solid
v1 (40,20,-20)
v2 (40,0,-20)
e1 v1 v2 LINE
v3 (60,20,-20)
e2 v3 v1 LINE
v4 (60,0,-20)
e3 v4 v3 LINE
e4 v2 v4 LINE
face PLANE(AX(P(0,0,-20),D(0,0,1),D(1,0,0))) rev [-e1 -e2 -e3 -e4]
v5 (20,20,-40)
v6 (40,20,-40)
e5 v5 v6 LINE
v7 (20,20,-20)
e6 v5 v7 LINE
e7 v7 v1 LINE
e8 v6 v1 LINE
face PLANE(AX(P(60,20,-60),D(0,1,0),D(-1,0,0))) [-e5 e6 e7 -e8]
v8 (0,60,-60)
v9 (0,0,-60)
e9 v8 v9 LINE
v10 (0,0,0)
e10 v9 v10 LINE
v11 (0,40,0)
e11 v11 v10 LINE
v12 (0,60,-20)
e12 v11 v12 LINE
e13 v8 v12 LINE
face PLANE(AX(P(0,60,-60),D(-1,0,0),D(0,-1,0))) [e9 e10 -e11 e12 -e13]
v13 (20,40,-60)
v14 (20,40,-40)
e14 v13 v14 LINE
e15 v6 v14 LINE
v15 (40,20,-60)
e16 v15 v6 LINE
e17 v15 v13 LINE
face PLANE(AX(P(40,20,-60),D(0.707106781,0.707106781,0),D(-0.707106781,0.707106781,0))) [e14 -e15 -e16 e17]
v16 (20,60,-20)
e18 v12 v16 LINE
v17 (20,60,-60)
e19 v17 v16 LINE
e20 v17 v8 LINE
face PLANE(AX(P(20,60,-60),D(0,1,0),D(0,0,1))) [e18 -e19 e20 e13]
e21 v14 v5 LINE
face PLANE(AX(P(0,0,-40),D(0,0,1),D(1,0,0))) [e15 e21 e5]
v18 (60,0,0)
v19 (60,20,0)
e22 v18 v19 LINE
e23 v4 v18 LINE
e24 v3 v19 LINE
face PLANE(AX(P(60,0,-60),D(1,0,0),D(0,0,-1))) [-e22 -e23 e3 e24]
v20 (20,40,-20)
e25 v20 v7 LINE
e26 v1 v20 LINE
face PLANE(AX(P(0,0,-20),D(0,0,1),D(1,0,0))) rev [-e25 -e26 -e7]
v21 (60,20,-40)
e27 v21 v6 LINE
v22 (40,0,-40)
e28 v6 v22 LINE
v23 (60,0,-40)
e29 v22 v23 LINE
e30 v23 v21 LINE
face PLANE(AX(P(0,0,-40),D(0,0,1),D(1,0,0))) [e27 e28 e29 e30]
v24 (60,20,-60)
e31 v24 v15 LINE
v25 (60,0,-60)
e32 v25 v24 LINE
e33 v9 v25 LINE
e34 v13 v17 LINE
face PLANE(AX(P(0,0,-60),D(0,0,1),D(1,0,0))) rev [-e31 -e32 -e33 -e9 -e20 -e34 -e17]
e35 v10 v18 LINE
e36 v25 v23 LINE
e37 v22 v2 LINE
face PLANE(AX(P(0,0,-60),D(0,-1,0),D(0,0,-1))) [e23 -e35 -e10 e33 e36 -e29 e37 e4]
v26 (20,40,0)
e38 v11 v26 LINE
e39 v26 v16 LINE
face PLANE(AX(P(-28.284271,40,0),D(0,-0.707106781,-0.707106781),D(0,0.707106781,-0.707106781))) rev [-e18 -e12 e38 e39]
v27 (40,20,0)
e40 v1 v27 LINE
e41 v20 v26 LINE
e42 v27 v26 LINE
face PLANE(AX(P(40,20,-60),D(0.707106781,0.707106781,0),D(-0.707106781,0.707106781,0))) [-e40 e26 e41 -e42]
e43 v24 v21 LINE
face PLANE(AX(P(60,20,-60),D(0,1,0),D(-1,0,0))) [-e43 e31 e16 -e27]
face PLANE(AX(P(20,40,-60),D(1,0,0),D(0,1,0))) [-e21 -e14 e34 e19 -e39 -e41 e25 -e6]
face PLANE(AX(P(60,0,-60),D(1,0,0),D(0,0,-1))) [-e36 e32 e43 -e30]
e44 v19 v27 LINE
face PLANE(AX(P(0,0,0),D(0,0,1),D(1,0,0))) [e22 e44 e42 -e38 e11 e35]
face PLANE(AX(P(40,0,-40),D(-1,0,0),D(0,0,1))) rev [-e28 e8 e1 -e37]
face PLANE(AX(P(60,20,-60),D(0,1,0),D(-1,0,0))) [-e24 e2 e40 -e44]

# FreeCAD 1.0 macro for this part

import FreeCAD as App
import Part
import Sketcher
from FreeCAD import Vector

doc = App.newDocument("Part")
body = doc.addObject("PartDesign::Body", "Body")

sketch1 = body.newObject("Sketcher::SketchObject", "Sketch")
sketch1.AttachmentSupport = (doc.getObject("XY_Plane"), [""])
sketch1.MapMode = "FlatFace"
sketch1.addGeometry([
    Part.LineSegment(Vector(0, 0, 0), Vector(60, 0, 0)),
    Part.LineSegment(Vector(60, 0, 0), Vector(60, 20, 0)),
    Part.LineSegment(Vector(60, 20, 0), Vector(40, 20, 0)),
    Part.LineSegment(Vector(40, 20, 0), Vector(20, 40, 0)),
    Part.LineSegment(Vector(20, 40, 0), Vector(20, 60, 0)),
    Part.LineSegment(Vector(20, 60, 0), Vector(0, 60, 0)),
    Part.LineSegment(Vector(0, 60, 0), Vector(0, 0, 0)),
], False)
sketch1.addConstraint([
    Sketcher.Constraint("Coincident", 0, 2, 1, 1),
    Sketcher.Constraint("Coincident", 1, 2, 2, 1),
    Sketcher.Constraint("Coincident", 2, 2, 3, 1),
    Sketcher.Constraint("Coincident", 3, 2, 4, 1),
    Sketcher.Constraint("Coincident", 4, 2, 5, 1),
    Sketcher.Constraint("Coincident", 5, 2, 6, 1),
    Sketcher.Constraint("Coincident", 6, 2, 0, 1),
    Sketcher.Constraint("Horizontal", 0),
    Sketcher.Constraint("Vertical", 1),
    Sketcher.Constraint("Horizontal", 2),
    Sketcher.Constraint("Vertical", 4),
    Sketcher.Constraint("Horizontal", 5),
    Sketcher.Constraint("Vertical", 6),
    Sketcher.Constraint("Coincident", 6, 2, -1, 1),
    Sketcher.Constraint("Equal", 2, 5),
    Sketcher.Constraint("Equal", 5, 1),
    Sketcher.Constraint("Equal", 1, 4),
    Sketcher.Constraint("Equal", 0, 6),
    Sketcher.Constraint("DistanceX", 0, 1, 0, 2, 60.0),
    Sketcher.Constraint("DistanceX", 2, 2, 2, 1, 20.0),
])
pad1 = body.newObject("PartDesign::Pad", "Pad")
pad1.Profile = sketch1
pad1.Length = 60
pad1.Reversed = True

sketch2 = body.newObject("Sketcher::SketchObject", "Sketch001")
sketch2.AttachmentSupport = (doc.getObject("YZ_Plane"), [""])
sketch2.MapMode = "FlatFace"
sketch2.AttachmentOffset = App.Placement(Vector(0, 0, 20), App.Rotation())
sketch2.addGeometry([
    Part.LineSegment(Vector(40, 0, 0), Vector(60, -20, 0)),
    Part.LineSegment(Vector(60, -20, 0), Vector(60, 0, 0)),
    Part.LineSegment(Vector(60, 0, 0), Vector(40, 0, 0)),
], False)
sketch2.addConstraint([
    Sketcher.Constraint("Coincident", 0, 2, 1, 1),
    Sketcher.Constraint("Coincident", 1, 2, 2, 1),
    Sketcher.Constraint("Coincident", 2, 2, 0, 1),
    Sketcher.Constraint("Vertical", 1),
    Sketcher.Constraint("Horizontal", 2),
    Sketcher.Constraint("PointOnObject", 1, 2, -1),
    Sketcher.Constraint("Equal", 2, 1),
    Sketcher.Constraint("DistanceX", 2, 2, 2, 1, 20.0),
    Sketcher.Constraint("DistanceX", -1, 1, 0, 2, 60.0),
])
pocket1 = body.newObject("PartDesign::Pocket", "Pocket")
pocket1.Profile = sketch2
pocket1.Length = 20

sketch3 = body.newObject("Sketcher::SketchObject", "Sketch002")
sketch3.AttachmentSupport = (doc.getObject("XY_Plane"), [""])
sketch3.MapMode = "FlatFace"
sketch3.AttachmentOffset = App.Placement(Vector(0, 0, -30), App.Rotation())
sketch3.addGeometry([
    Part.LineSegment(Vector(20, 40, 0), Vector(20, 20, 0)),
    Part.LineSegment(Vector(20, 20, 0), Vector(40, 20, 0)),
    Part.LineSegment(Vector(40, 20, 0), Vector(20, 40, 0)),
    Part.LineSegment(Vector(40, 20, 0), Vector(40, 0, 0)),
    Part.LineSegment(Vector(40, 0, 0), Vector(60, 0, 0)),
    Part.LineSegment(Vector(60, 0, 0), Vector(60, 20, 0)),
    Part.LineSegment(Vector(60, 20, 0), Vector(40, 20, 0)),
], False)
sketch3.addConstraint([
    Sketcher.Constraint("Coincident", 0, 2, 1, 1),
    Sketcher.Constraint("Coincident", 1, 2, 2, 1),
    Sketcher.Constraint("Coincident", 2, 2, 0, 1),
    Sketcher.Constraint("Coincident", 3, 2, 4, 1),
    Sketcher.Constraint("Coincident", 4, 2, 5, 1),
    Sketcher.Constraint("Coincident", 5, 2, 6, 1),
    Sketcher.Constraint("Coincident", 6, 2, 3, 1),
    Sketcher.Constraint("Vertical", 0),
    Sketcher.Constraint("Horizontal", 1),
    Sketcher.Constraint("Vertical", 3),
    Sketcher.Constraint("Horizontal", 4),
    Sketcher.Constraint("Vertical", 5),
    Sketcher.Constraint("Horizontal", 6),
    Sketcher.Constraint("Coincident", 6, 2, 1, 2),
    Sketcher.Constraint("PointOnObject", 3, 2, -1),
    Sketcher.Constraint("Equal", 1, 4),
    Sketcher.Constraint("Equal", 6, 0),
    Sketcher.Constraint("Equal", 0, 3),
    Sketcher.Constraint("DistanceX", 1, 1, 1, 2, 20.0),
    Sketcher.Constraint("DistanceX", -1, 1, 0, 2, 20.0),
])
pocket2 = body.newObject("PartDesign::Pocket", "Pocket001")
pocket2.Profile = sketch3
pocket2.Length = 20
pocket2.Midplane = True

doc.recompute()
